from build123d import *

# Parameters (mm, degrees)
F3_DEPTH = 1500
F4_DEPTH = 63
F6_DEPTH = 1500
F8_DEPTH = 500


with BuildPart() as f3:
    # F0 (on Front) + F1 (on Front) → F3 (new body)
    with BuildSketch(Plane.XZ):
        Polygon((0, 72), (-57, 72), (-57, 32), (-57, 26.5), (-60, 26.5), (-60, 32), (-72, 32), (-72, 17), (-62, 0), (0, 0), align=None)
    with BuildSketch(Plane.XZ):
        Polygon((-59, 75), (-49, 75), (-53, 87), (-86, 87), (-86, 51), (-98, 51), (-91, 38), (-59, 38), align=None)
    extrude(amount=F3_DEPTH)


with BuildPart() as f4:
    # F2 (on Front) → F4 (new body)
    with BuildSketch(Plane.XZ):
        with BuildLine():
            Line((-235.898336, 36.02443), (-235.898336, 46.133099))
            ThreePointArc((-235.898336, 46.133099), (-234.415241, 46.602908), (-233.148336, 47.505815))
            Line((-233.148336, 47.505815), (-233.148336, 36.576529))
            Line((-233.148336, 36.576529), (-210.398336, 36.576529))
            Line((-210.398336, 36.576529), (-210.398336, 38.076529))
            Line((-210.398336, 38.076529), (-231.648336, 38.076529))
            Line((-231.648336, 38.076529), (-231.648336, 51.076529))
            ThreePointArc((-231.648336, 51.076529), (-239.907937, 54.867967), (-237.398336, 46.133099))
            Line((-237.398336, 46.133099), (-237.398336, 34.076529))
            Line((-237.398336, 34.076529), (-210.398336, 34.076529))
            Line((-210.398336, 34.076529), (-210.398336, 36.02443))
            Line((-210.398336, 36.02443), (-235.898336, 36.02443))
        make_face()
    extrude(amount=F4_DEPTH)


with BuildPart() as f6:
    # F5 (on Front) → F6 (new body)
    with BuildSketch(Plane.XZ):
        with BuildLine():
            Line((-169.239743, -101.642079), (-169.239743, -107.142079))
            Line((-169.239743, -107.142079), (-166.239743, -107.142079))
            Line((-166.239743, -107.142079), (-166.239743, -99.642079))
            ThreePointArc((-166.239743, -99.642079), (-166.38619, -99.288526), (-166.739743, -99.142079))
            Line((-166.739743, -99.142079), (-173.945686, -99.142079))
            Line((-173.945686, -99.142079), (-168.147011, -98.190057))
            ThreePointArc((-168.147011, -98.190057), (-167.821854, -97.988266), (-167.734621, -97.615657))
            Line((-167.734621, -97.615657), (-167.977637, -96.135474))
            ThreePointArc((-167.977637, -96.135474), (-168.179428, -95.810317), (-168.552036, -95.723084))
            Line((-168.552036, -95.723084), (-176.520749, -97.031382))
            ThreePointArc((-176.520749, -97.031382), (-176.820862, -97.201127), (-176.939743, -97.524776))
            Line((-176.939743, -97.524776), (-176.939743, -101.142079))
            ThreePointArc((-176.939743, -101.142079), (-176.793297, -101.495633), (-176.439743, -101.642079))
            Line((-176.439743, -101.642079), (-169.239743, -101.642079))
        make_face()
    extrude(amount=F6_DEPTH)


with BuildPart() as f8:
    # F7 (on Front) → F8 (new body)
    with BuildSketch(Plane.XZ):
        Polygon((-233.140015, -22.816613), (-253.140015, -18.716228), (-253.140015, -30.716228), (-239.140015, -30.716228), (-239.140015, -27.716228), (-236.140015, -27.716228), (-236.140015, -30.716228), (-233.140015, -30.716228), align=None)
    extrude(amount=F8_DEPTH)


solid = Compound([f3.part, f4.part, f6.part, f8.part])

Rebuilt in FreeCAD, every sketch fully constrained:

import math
import FreeCAD as App
import Part
import Sketcher

doc = App.newDocument("Part")
body = doc.addObject("PartDesign::Body", "Body")
body.AllowCompound = True

# Sketch on XZ plane
sketch1 = doc.addObject("Sketcher::SketchObject", "Sketch")
body.addObject(sketch1)
sketch1.AttachmentSupport = (doc.XZ_Plane, [""])
sketch1.MapMode = "FlatFace"
sketch1.addGeometry(Part.LineSegment(App.Vector(0, 72, 0), App.Vector(-57, 72, 0)), False)
sketch1.addGeometry(Part.LineSegment(App.Vector(-57, 72, 0), App.Vector(-57, 26.5, 0)), False)
sketch1.addGeometry(Part.LineSegment(App.Vector(-57, 26.5, 0), App.Vector(-60, 26.5, 0)), False)
sketch1.addGeometry(Part.LineSegment(App.Vector(-60, 26.5, 0), App.Vector(-60, 32, 0)), False)
sketch1.addGeometry(Part.LineSegment(App.Vector(-60, 32, 0), App.Vector(-72, 32, 0)), False)
sketch1.addGeometry(Part.LineSegment(App.Vector(-72, 32, 0), App.Vector(-72, 17, 0)), False)
sketch1.addGeometry(Part.LineSegment(App.Vector(-72, 17, 0), App.Vector(-62, 0, 0)), False)
sketch1.addGeometry(Part.LineSegment(App.Vector(-62, 0, 0), App.Vector(0, 0, 0)), False)
sketch1.addGeometry(Part.LineSegment(App.Vector(0, 0, 0), App.Vector(0, 72, 0)), False)
sketch1.addGeometry(Part.LineSegment(App.Vector(-59, 75, 0), App.Vector(-49, 75, 0)), False)
sketch1.addGeometry(Part.LineSegment(App.Vector(-49, 75, 0), App.Vector(-53, 87, 0)), False)
sketch1.addGeometry(Part.LineSegment(App.Vector(-53, 87, 0), App.Vector(-86, 87, 0)), False)
sketch1.addGeometry(Part.LineSegment(App.Vector(-86, 87, 0), App.Vector(-86, 51, 0)), False)
sketch1.addGeometry(Part.LineSegment(App.Vector(-86, 51, 0), App.Vector(-98, 51, 0)), False)
sketch1.addGeometry(Part.LineSegment(App.Vector(-98, 51, 0), App.Vector(-91, 38, 0)), False)
sketch1.addGeometry(Part.LineSegment(App.Vector(-91, 38, 0), App.Vector(-59, 38, 0)), False)
sketch1.addGeometry(Part.LineSegment(App.Vector(-59, 38, 0), App.Vector(-59, 75, 0)), False)
sketch1.addConstraint(Sketcher.Constraint("Coincident", 0, 2, 1, 1))
sketch1.addConstraint(Sketcher.Constraint("Coincident", 1, 2, 2, 1))
sketch1.addConstraint(Sketcher.Constraint("Coincident", 2, 2, 3, 1))
sketch1.addConstraint(Sketcher.Constraint("Coincident", 3, 2, 4, 1))
sketch1.addConstraint(Sketcher.Constraint("Coincident", 4, 2, 5, 1))
sketch1.addConstraint(Sketcher.Constraint("Coincident", 5, 2, 6, 1))
sketch1.addConstraint(Sketcher.Constraint("Coincident", 6, 2, 7, 1))
sketch1.addConstraint(Sketcher.Constraint("Coincident", 7, 2, 8, 1))
sketch1.addConstraint(Sketcher.Constraint("Coincident", 8, 2, 0, 1))
sketch1.addConstraint(Sketcher.Constraint("Coincident", 9, 2, 10, 1))
sketch1.addConstraint(Sketcher.Constraint("Coincident", 10, 2, 11, 1))
sketch1.addConstraint(Sketcher.Constraint("Coincident", 11, 2, 12, 1))
sketch1.addConstraint(Sketcher.Constraint("Coincident", 12, 2, 13, 1))
sketch1.addConstraint(Sketcher.Constraint("Coincident", 13, 2, 14, 1))
sketch1.addConstraint(Sketcher.Constraint("Coincident", 14, 2, 15, 1))
sketch1.addConstraint(Sketcher.Constraint("Coincident", 15, 2, 16, 1))
sketch1.addConstraint(Sketcher.Constraint("Coincident", 16, 2, 9, 1))
sketch1.addConstraint(Sketcher.Constraint("Horizontal", 0))
sketch1.addConstraint(Sketcher.Constraint("Vertical", 1))
sketch1.addConstraint(Sketcher.Constraint("Horizontal", 2))
sketch1.addConstraint(Sketcher.Constraint("Vertical", 3))
sketch1.addConstraint(Sketcher.Constraint("Horizontal", 4))
sketch1.addConstraint(Sketcher.Constraint("Vertical", 5))
sketch1.addConstraint(Sketcher.Constraint("Horizontal", 7))
sketch1.addConstraint(Sketcher.Constraint("Vertical", 8))
sketch1.addConstraint(Sketcher.Constraint("Horizontal", 9))
sketch1.addConstraint(Sketcher.Constraint("Horizontal", 11))
sketch1.addConstraint(Sketcher.Constraint("Vertical", 12))
sketch1.addConstraint(Sketcher.Constraint("Horizontal", 13))
sketch1.addConstraint(Sketcher.Constraint("Horizontal", 15))
sketch1.addConstraint(Sketcher.Constraint("Vertical", 16))
sketch1.addConstraint(Sketcher.Constraint("Coincident", 7, 2, -1, 1))
sketch1.addConstraint(Sketcher.Constraint("Equal", 4, 13))
sketch1.addConstraint(Sketcher.Constraint("DistanceX", 0, 2, 0, 1, 57.0))
sketch1.addConstraint(Sketcher.Constraint("DistanceX", 2, 2, 2, 1, 3.0))
sketch1.addConstraint(Sketcher.Constraint("DistanceX", 4, 2, 4, 1, 12.0))
sketch1.addConstraint(Sketcher.Constraint("DistanceX", 7, 1, 7, 2, 62.0))
sketch1.addConstraint(Sketcher.Constraint("DistanceX", 9, 1, 9, 2, 10.0))
sketch1.addConstraint(Sketcher.Constraint("DistanceX", 11, 2, 11, 1, 33.0))
sketch1.addConstraint(Sketcher.Constraint("DistanceX", 15, 1, 15, 2, 32.0))
sketch1.addConstraint(Sketcher.Constraint("DistanceY", 5, 2, 5, 1, 15.0))
sketch1.addConstraint(Sketcher.Constraint("DistanceY", 8, 1, 8, 2, 72.0))
sketch1.addConstraint(Sketcher.Constraint("DistanceY", 12, 2, 12, 1, 36.0))
sketch1.addConstraint(Sketcher.Constraint("DistanceY", 16, 1, 16, 2, 37.0))
sketch1.addConstraint(Sketcher.Constraint("DistanceY", 1, 2, 1, 1, 45.5))
sketch1.addConstraint(Sketcher.Constraint("DistanceY", 3, 1, 3, 2, 5.5))
sketch1.addConstraint(Sketcher.Constraint("DistanceX", 9, 2, -1, 1, 49.0))
sketch1.addConstraint(Sketcher.Constraint("DistanceY", -1, 1, 9, 2, 75.0))
sketch1.addConstraint(Sketcher.Constraint("DistanceX", 10, 2, -1, 1, 53.0))
sketch1.addConstraint(Sketcher.Constraint("DistanceY", -1, 1, 10, 2, 87.0))
pad1 = doc.addObject("PartDesign::Pad", "Pad")
body.addObject(pad1)
pad1.Profile = sketch1
pad1.Length = 1500
body2 = doc.addObject("PartDesign::Body", "Body001")

# Sketch on XZ plane
sketch2 = doc.addObject("Sketcher::SketchObject", "Sketch001")
body2.addObject(sketch2)
sketch2.AttachmentSupport = (doc.getObject("XZ_Plane001"), [""])
sketch2.MapMode = "FlatFace"
sketch2.addGeometry(Part.LineSegment(App.Vector(-235.9, 36, 0), App.Vector(-235.9, 46.1, 0)), False)
sketch2.addGeometry(Part.ArcOfCircle(Part.Circle(App.Vector(-236.6, 51.1, 0), App.Vector(0, 0, 1), 5), math.radians(-81), math.radians(-46)), False)
sketch2.addGeometry(Part.LineSegment(App.Vector(-233.1, 47.5, 0), App.Vector(-233.1, 36.6, 0)), False)
sketch2.addGeometry(Part.LineSegment(App.Vector(-233.1, 36.6, 0), App.Vector(-210.4, 36.6, 0)), False)
sketch2.addGeometry(Part.LineSegment(App.Vector(-210.4, 36.6, 0), App.Vector(-210.4, 38.1, 0)), False)
sketch2.addGeometry(Part.LineSegment(App.Vector(-210.4, 38.1, 0), App.Vector(-231.6, 38.1, 0)), False)
sketch2.addGeometry(Part.LineSegment(App.Vector(-231.6, 38.1, 0), App.Vector(-231.6, 51.1, 0)), False)
sketch2.addGeometry(Part.ArcOfCircle(Part.Circle(App.Vector(-236.6, 51.1, 0), App.Vector(0, 0, 1), 5), math.radians(0), math.radians(261)), False)
sketch2.addGeometry(Part.LineSegment(App.Vector(-237.4, 46.1, 0), App.Vector(-237.4, 34.1, 0)), False)
sketch2.addGeometry(Part.LineSegment(App.Vector(-237.4, 34.1, 0), App.Vector(-210.4, 34.1, 0)), False)
sketch2.addGeometry(Part.LineSegment(App.Vector(-210.4, 34.1, 0), App.Vector(-210.4, 36, 0)), False)
sketch2.addGeometry(Part.LineSegment(App.Vector(-210.4, 36, 0), App.Vector(-235.9, 36, 0)), False)
sketch2.addConstraint(Sketcher.Constraint("Coincident", 0, 2, 1, 1))
sketch2.addConstraint(Sketcher.Constraint("Coincident", 1, 2, 2, 1))
sketch2.addConstraint(Sketcher.Constraint("Coincident", 2, 2, 3, 1))
sketch2.addConstraint(Sketcher.Constraint("Coincident", 3, 2, 4, 1))
sketch2.addConstraint(Sketcher.Constraint("Coincident", 4, 2, 5, 1))
sketch2.addConstraint(Sketcher.Constraint("Coincident", 5, 2, 6, 1))
sketch2.addConstraint(Sketcher.Constraint("Tangent", 6, 2, 7, 1))
sketch2.addConstraint(Sketcher.Constraint("Coincident", 7, 2, 8, 1))
sketch2.addConstraint(Sketcher.Constraint("Coincident", 8, 2, 9, 1))
sketch2.addConstraint(Sketcher.Constraint("Coincident", 9, 2, 10, 1))
sketch2.addConstraint(Sketcher.Constraint("Coincident", 10, 2, 11, 1))
sketch2.addConstraint(Sketcher.Constraint("Coincident", 11, 2, 0, 1))
sketch2.addConstraint(Sketcher.Constraint("Vertical", 0))
sketch2.addConstraint(Sketcher.Constraint("Vertical", 2))
sketch2.addConstraint(Sketcher.Constraint("Horizontal", 3))
sketch2.addConstraint(Sketcher.Constraint("Vertical", 4))
sketch2.addConstraint(Sketcher.Constraint("Horizontal", 5))
sketch2.addConstraint(Sketcher.Constraint("Vertical", 6))
sketch2.addConstraint(Sketcher.Constraint("Vertical", 8))
sketch2.addConstraint(Sketcher.Constraint("Horizontal", 9))
sketch2.addConstraint(Sketcher.Constraint("Vertical", 10))
sketch2.addConstraint(Sketcher.Constraint("Horizontal", 11))
sketch2.addConstraint(Sketcher.Constraint("Coincident", 7, 3, 1, 3))
sketch2.addConstraint(Sketcher.Constraint("Horizontal", 0, 2, 7, 2))
sketch2.addConstraint(Sketcher.Constraint("Vertical", 4, 2, 9, 2))
sketch2.addConstraint(Sketcher.Constraint("Radius", 7, 5.0))
sketch2.addConstraint(Sketcher.Constraint("DistanceX", 9, 1, 9, 2, 27.0))
sketch2.addConstraint(Sketcher.Constraint("DistanceY", 6, 1, 6, 2, 13.0))
sketch2.addConstraint(Sketcher.Constraint("DistanceX", 11, 2, 11, 1, 25.5))
sketch2.addConstraint(Sketcher.Constraint("DistanceY", 4, 1, 4, 2, 1.5))
sketch2.addConstraint(Sketcher.Constraint("DistanceY", 8, 2, 5, 2, 4.0))
sketch2.addConstraint(Sketcher.Constraint("DistanceX", 3, 1, 3, 2, 22.75))
sketch2.addConstraint(Sketcher.Constraint("DistanceX", 5, 2, 5, 1, 21.25))
sketch2.addConstraint(Sketcher.Constraint("DistanceY", 10, 1, 10, 2, 1.947901))
sketch2.addConstraint(Sketcher.Constraint("DistanceY", -1, 1, 0, 2, 46.133099))
sketch2.addConstraint(Sketcher.Constraint("DistanceX", 1, 3, -1, 1, 236.648337))
pad2 = doc.addObject("PartDesign::Pad", "Pad001")
body2.addObject(pad2)
pad2.Profile = sketch2
pad2.Length = 63
body3 = doc.addObject("PartDesign::Body", "Body002")

# Sketch on XZ plane
sketch3 = doc.addObject("Sketcher::SketchObject", "Sketch002")
body3.addObject(sketch3)
sketch3.AttachmentSupport = (doc.getObject("XZ_Plane002"), [""])
sketch3.MapMode = "FlatFace"
sketch3.addGeometry(Part.LineSegment(App.Vector(-169.239743, -101.642079, 0), App.Vector(-169.239743, -107.142079, 0)), False)
sketch3.addGeometry(Part.LineSegment(App.Vector(-169.239743, -107.142079, 0), App.Vector(-166.239743, -107.142079, 0)), False)
sketch3.addGeometry(Part.LineSegment(App.Vector(-166.239743, -107.142079, 0), App.Vector(-166.239743, -99.642079, 0)), False)
sketch3.addGeometry(Part.ArcOfCircle(Part.Circle(App.Vector(-166.739744, -99.64208, 0), App.Vector(0, 0, 1), 0.500001), math.radians(0.000153), math.radians(89.999847)), False)
sketch3.addGeometry(Part.LineSegment(App.Vector(-166.739743, -99.142079, 0), App.Vector(-173.945686, -99.142079, 0)), False)
sketch3.addGeometry(Part.LineSegment(App.Vector(-173.945686, -99.142079, 0), App.Vector(-168.147011, -98.190057, 0)), False)
sketch3.addGeometry(Part.ArcOfCircle(Part.Circle(App.Vector(-168.228016, -97.696662, 0), App.Vector(0, 0, 1), 0.5), math.radians(-80.676433), math.radians(9.323582)), False)
sketch3.addGeometry(Part.LineSegment(App.Vector(-167.734621, -97.615657, 0), App.Vector(-167.977637, -96.135474, 0)), False)
sketch3.addGeometry(Part.ArcOfCircle(Part.Circle(App.Vector(-168.471032, -96.216479, 0), App.Vector(0, 0, 1), 0.5), math.radians(9.323554), math.radians(99.323501)), False)
sketch3.addGeometry(Part.LineSegment(App.Vector(-168.552036, -95.723084, 0), App.Vector(-176.520749, -97.031382, 0)), False)
sketch3.addGeometry(Part.ArcOfCircle(Part.Circle(App.Vector(-176.439745, -97.524775, 0), App.Vector(0, 0, 1), 0.499998), math.radians(99.323505), math.radians(180.000149)), False)
sketch3.addGeometry(Part.LineSegment(App.Vector(-176.939743, -97.524776, 0), App.Vector(-176.939743, -101.142079, 0)), False)
sketch3.addGeometry(Part.ArcOfCircle(Part.Circle(App.Vector(-176.439745, -101.142081, 0), App.Vector(0, 0, 1), 0.499998), math.radians(179.999762), math.radians(270.000238)), False)
sketch3.addGeometry(Part.LineSegment(App.Vector(-176.439743, -101.642079, 0), App.Vector(-169.239743, -101.642079, 0)), False)
sketch3.addConstraint(Sketcher.Constraint("Coincident", 0, 2, 1, 1))
sketch3.addConstraint(Sketcher.Constraint("Coincident", 1, 2, 2, 1))
sketch3.addConstraint(Sketcher.Constraint("Coincident", 2, 2, 3, 1))
sketch3.addConstraint(Sketcher.Constraint("Coincident", 3, 2, 4, 1))
sketch3.addConstraint(Sketcher.Constraint("Coincident", 4, 2, 5, 1))
sketch3.addConstraint(Sketcher.Constraint("Coincident", 5, 2, 6, 1))
sketch3.addConstraint(Sketcher.Constraint("Coincident", 6, 2, 7, 1))
sketch3.addConstraint(Sketcher.Constraint("Coincident", 7, 2, 8, 1))
sketch3.addConstraint(Sketcher.Constraint("Coincident", 8, 2, 9, 1))
sketch3.addConstraint(Sketcher.Constraint("Coincident", 9, 2, 10, 1))
sketch3.addConstraint(Sketcher.Constraint("Coincident", 10, 2, 11, 1))
sketch3.addConstraint(Sketcher.Constraint("Coincident", 11, 2, 12, 1))
sketch3.addConstraint(Sketcher.Constraint("Coincident", 12, 2, 13, 1))
sketch3.addConstraint(Sketcher.Constraint("Coincident", 13, 2, 0, 1))
sketch3.addConstraint(Sketcher.Constraint("Vertical", 0))
sketch3.addConstraint(Sketcher.Constraint("Horizontal", 1))
sketch3.addConstraint(Sketcher.Constraint("Vertical", 2))
sketch3.addConstraint(Sketcher.Constraint("Horizontal", 4))
sketch3.addConstraint(Sketcher.Constraint("Vertical", 11))
sketch3.addConstraint(Sketcher.Constraint("Horizontal", 13))
sketch3.addConstraint(Sketcher.Constraint("Radius", 3, 0.500001))
sketch3.addConstraint(Sketcher.Constraint("Radius", 6, 0.5))
sketch3.addConstraint(Sketcher.Constraint("Radius", 8, 0.5))
sketch3.addConstraint(Sketcher.Constraint("Radius", 10, 0.499998))
sketch3.addConstraint(Sketcher.Constraint("DistanceX", 1, 1, 1, 2, 3.0))
sketch3.addConstraint(Sketcher.Constraint("DistanceX", 13, 1, 13, 2, 7.2))
sketch3.addConstraint(Sketcher.Constraint("DistanceY", 0, 2, 0, 1, 5.5))
sketch3.addConstraint(Sketcher.Constraint("DistanceY", 2, 1, 2, 2, 7.5))
sketch3.addConstraint(Sketcher.Constraint("DistanceY", 1, 2, 3, 2, 8.0))
sketch3.addConstraint(Sketcher.Constraint("DistanceY", 11, 2, 4, 2, 2.0))
sketch3.addConstraint(Sketcher.Constraint("Distance", 7, 1.499999))
sketch3.addConstraint(Sketcher.Constraint("DistanceX", 10, 3, 3, 3, 9.700001))
sketch3.addConstraint(Sketcher.Constraint("DistanceX", 12, 3, 3, 3, 9.700001))
sketch3.addConstraint(Sketcher.Constraint("DistanceX", 3, 2, 2, 2, 0.5))
sketch3.addConstraint(Sketcher.Constraint("DistanceY", 3, 3, 8, 3, 3.425602))
sketch3.addConstraint(Sketcher.Constraint("DistanceY", 5, 2, 6, 2, 0.5744))
sketch3.addConstraint(Sketcher.Constraint("DistanceX", 8, 2, 7, 2, 0.574399))
sketch3.addConstraint(Sketcher.Constraint("DistanceY", 12, 3, 9, 2, 4.110699))
sketch3.addConstraint(Sketcher.Constraint("DistanceX", 4, 2, 4, 1, 7.205943))
sketch3.addConstraint(Sketcher.Constraint("DistanceY", 11, 2, 11, 1, 3.617303))
sketch3.addConstraint(Sketcher.Constraint("DistanceY", 3, 3, -1, 1, 99.64208))
sketch3.addConstraint(Sketcher.Constraint("DistanceX", 8, 3, -1, 1, 168.471032))
sketch3.addConstraint(Sketcher.Constraint("DistanceX", 5, 2, -1, 1, 168.147011))
sketch3.addConstraint(Sketcher.Constraint("DistanceX", 6, 2, -1, 1, 167.734621))
sketch3.addConstraint(Sketcher.Constraint("DistanceX", 9, 2, -1, 1, 176.520749))
sketch3.addConstraint(Sketcher.Constraint("DistanceX", 6, 3, 3, 3, 1.488272))
sketch3.addConstraint(Sketcher.Constraint("DistanceY", 3, 3, 6, 3, 1.945418))
pad3 = doc.addObject("PartDesign::Pad", "Pad002")
body3.addObject(pad3)
pad3.Profile = sketch3
pad3.Length = 1500
body4 = doc.addObject("PartDesign::Body", "Body003")

# Sketch on XZ plane
sketch4 = doc.addObject("Sketcher::SketchObject", "Sketch003")
body4.addObject(sketch4)
sketch4.AttachmentSupport = (doc.getObject("XZ_Plane003"), [""])
sketch4.MapMode = "FlatFace"
sketch4.addGeometry(Part.LineSegment(App.Vector(-233.1, -22.8, 0), App.Vector(-253.1, -18.7, 0)), False)
sketch4.addGeometry(Part.LineSegment(App.Vector(-253.1, -18.7, 0), App.Vector(-253.1, -30.7, 0)), False)
sketch4.addGeometry(Part.LineSegment(App.Vector(-253.1, -30.7, 0), App.Vector(-239.1, -30.7, 0)), False)
sketch4.addGeometry(Part.LineSegment(App.Vector(-239.1, -30.7, 0), App.Vector(-239.1, -27.7, 0)), False)
sketch4.addGeometry(Part.LineSegment(App.Vector(-239.1, -27.7, 0), App.Vector(-236.1, -27.7, 0)), False)
sketch4.addGeometry(Part.LineSegment(App.Vector(-236.1, -27.7, 0), App.Vector(-236.1, -30.7, 0)), False)
sketch4.addGeometry(Part.LineSegment(App.Vector(-236.1, -30.7, 0), App.Vector(-233.1, -30.7, 0)), False)
sketch4.addGeometry(Part.LineSegment(App.Vector(-233.1, -30.7, 0), App.Vector(-233.1, -22.8, 0)), False)
sketch4.addConstraint(Sketcher.Constraint("Coincident", 0, 2, 1, 1))
sketch4.addConstraint(Sketcher.Constraint("Coincident", 1, 2, 2, 1))
sketch4.addConstraint(Sketcher.Constraint("Coincident", 2, 2, 3, 1))
sketch4.addConstraint(Sketcher.Constraint("Coincident", 3, 2, 4, 1))
sketch4.addConstraint(Sketcher.Constraint("Coincident", 4, 2, 5, 1))
sketch4.addConstraint(Sketcher.Constraint("Coincident", 5, 2, 6, 1))
sketch4.addConstraint(Sketcher.Constraint("Coincident", 6, 2, 7, 1))
sketch4.addConstraint(Sketcher.Constraint("Coincident", 7, 2, 0, 1))
sketch4.addConstraint(Sketcher.Constraint("Vertical", 1))
sketch4.addConstraint(Sketcher.Constraint("Horizontal", 2))
sketch4.addConstraint(Sketcher.Constraint("Vertical", 3))
sketch4.addConstraint(Sketcher.Constraint("Horizontal", 4))
sketch4.addConstraint(Sketcher.Constraint("Vertical", 5))
sketch4.addConstraint(Sketcher.Constraint("Horizontal", 6))
sketch4.addConstraint(Sketcher.Constraint("Vertical", 7))
sketch4.addConstraint(Sketcher.Constraint("Horizontal", 2, 2, 5, 2))
sketch4.addConstraint(Sketcher.Constraint("Equal", 4, 6))
sketch4.addConstraint(Sketcher.Constraint("Equal", 6, 3))
sketch4.addConstraint(Sketcher.Constraint("DistanceX", 2, 1, 2, 2, 14.0))
sketch4.addConstraint(Sketcher.Constraint("DistanceX", 4, 1, 4, 2, 3.0))
sketch4.addConstraint(Sketcher.Constraint("DistanceY", 1, 2, 1, 1, 12.0))
sketch4.addConstraint(Sketcher.Constraint("DistanceY", 7, 1, 7, 2, 7.899615))
sketch4.addConstraint(Sketcher.Constraint("DistanceY", 0, 2, -1, 1, 18.716228))
sketch4.addConstraint(Sketcher.Constraint("DistanceX", 0, 2, -1, 1, 253.140015))
pad4 = doc.addObject("PartDesign::Pad", "Pad003")
body4.addObject(pad4)
pad4.Profile = sketch4
pad4.Length = 500

doc.recompute()
